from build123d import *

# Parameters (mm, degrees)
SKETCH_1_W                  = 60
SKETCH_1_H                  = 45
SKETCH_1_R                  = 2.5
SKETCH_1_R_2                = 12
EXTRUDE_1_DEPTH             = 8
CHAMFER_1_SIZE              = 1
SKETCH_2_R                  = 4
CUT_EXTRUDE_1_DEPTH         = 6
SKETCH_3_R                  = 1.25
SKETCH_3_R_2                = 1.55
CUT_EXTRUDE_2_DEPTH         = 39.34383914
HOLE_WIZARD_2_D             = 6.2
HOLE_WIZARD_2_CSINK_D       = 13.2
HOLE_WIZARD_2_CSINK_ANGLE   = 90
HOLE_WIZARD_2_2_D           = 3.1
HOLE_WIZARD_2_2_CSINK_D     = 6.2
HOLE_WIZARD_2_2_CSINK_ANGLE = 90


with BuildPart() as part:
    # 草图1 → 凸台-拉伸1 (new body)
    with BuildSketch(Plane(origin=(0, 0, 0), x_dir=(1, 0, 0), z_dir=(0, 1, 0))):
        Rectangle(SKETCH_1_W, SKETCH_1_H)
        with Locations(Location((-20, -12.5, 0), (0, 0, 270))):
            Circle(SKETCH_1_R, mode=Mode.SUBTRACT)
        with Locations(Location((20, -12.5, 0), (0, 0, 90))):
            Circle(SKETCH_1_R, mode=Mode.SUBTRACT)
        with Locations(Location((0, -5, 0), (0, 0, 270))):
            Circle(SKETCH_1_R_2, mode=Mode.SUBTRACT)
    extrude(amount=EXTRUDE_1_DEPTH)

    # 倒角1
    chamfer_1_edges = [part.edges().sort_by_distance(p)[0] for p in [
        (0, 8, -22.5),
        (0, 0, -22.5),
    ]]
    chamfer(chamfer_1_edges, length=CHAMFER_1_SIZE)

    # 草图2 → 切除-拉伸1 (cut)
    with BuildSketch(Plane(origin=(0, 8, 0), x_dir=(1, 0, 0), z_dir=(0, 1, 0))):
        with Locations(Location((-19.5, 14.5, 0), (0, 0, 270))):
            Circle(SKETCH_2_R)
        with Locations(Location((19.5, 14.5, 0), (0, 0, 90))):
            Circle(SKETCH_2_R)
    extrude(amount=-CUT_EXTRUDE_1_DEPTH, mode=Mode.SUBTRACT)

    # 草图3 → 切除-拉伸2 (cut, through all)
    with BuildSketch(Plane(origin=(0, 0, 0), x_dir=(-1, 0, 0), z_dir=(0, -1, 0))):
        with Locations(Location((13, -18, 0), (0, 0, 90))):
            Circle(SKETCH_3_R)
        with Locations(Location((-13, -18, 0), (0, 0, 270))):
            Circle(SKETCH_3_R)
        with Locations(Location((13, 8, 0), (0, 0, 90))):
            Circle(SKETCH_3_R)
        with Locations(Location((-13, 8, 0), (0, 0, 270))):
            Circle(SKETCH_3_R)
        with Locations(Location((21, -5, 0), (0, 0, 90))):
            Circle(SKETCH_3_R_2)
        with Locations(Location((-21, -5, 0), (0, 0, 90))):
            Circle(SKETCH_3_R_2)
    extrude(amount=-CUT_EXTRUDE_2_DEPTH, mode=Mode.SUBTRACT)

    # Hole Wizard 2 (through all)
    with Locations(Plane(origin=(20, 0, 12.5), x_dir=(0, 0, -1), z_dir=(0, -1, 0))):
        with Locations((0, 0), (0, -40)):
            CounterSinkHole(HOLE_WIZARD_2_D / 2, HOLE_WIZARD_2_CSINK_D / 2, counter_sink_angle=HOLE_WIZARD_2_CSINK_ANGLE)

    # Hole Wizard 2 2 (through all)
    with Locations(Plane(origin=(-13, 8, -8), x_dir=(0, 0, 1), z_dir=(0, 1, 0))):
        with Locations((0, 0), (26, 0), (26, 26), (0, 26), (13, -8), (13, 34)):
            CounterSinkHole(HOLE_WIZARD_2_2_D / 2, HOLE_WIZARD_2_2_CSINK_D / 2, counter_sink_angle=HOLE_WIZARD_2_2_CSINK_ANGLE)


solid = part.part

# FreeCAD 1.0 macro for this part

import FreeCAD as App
import Part
import Sketcher
from FreeCAD import Vector


def edges_at(feature, points):
    """Names of the edges that pass closest to the given points."""
    edges = feature.Shape.Edges
    near = lambda p: min(range(len(edges)), key=lambda i: edges[i].distToShape(Part.Vertex(*p))[0])
    return sorted({f"Edge{near(p) + 1}" for p in points})


def add_polygon(sketch, points):
    """Adds a closed chain of lines whose ends are joined by coincident constraints."""
    first, n = sketch.GeometryCount, len(points)
    for a, b in zip(points, points[1:] + points[:1]):
        sketch.addGeometry(Part.LineSegment(App.Vector(*a, 0), App.Vector(*b, 0)), False)
    for i in range(n):
        sketch.addConstraint(Sketcher.Constraint("Coincident", first + i, 2, first + (i + 1) % n, 1))

doc = App.newDocument("Part")
body = doc.addObject("PartDesign::Body", "Body")

# Sketch on XZ plane
sketch1 = body.newObject("Sketcher::SketchObject", "Sketch")
sketch1.AttachmentSupport = (doc.getObject("XZ_Plane"), [""])
sketch1.MapMode = "FlatFace"
add_polygon(sketch1, [(-30, -22.5), (-30, 22.5), (30, 22.5), (30, -22.5)])  # lines 0-3
sketch1.addGeometry(Part.Circle(Vector(-20, 12.5, 0), Vector(0, 0, 1), 2.5), False)  # 4
sketch1.addGeometry(Part.Circle(Vector(20, 12.5, 0), Vector(0, 0, 1), 2.5), False)  # 5
sketch1.addGeometry(Part.Circle(Vector(0, 5, 0), Vector(0, 0, 1), 12), False)  # 6
sketch1.addConstraint(Sketcher.Constraint("Vertical", 0))
sketch1.addConstraint(Sketcher.Constraint("Horizontal", 1))
sketch1.addConstraint(Sketcher.Constraint("Vertical", 2))
sketch1.addConstraint(Sketcher.Constraint("Horizontal", 3))
sketch1.addConstraint(Sketcher.Constraint("Equal", 4, 5))
sketch1.addConstraint(Sketcher.Constraint("Symmetric", 0, 2, 2, 2, -1, 1))
sketch1.addConstraint(Sketcher.Constraint("Symmetric", 4, 3, 5, 3, -2))
sketch1.addConstraint(Sketcher.Constraint("PointOnObject", 6, 3, -2))
sketch1.addConstraint(Sketcher.Constraint("Diameter", 4, 5.0))
sketch1.addConstraint(Sketcher.Constraint("Diameter", 6, 24.0))
sketch1.addConstraint(Sketcher.Constraint("DistanceX", 1, 1, 1, 2, 60.0))
sketch1.addConstraint(Sketcher.Constraint("DistanceY", 0, 1, 0, 2, 45.0))
sketch1.addConstraint(Sketcher.Constraint("DistanceX", 4, 3, -1, 1, 20.0))
sketch1.addConstraint(Sketcher.Constraint("DistanceY", -1, 1, 6, 3, 5.0))
sketch1.addConstraint(Sketcher.Constraint("DistanceY", 4, 3, 0, 2, 10.0))
pad1 = body.newObject("PartDesign::Pad", "Pad")
pad1.Profile = sketch1
pad1.Length = 8
pad1.Reversed = True
doc.recompute()

chamfer = body.newObject("PartDesign::Chamfer", "Chamfer")
chamfer.Base = (pad1, edges_at(pad1, [(0, 8, -22.5), (0, 0, -22.5)]))
chamfer.Size = 1

# Sketch on XZ plane
sketch2 = body.newObject("Sketcher::SketchObject", "Sketch001")
sketch2.AttachmentSupport = (doc.getObject("XZ_Plane"), [""])
sketch2.MapMode = "FlatFace"
sketch2.AttachmentOffset = App.Placement(Vector(0, 0, -8), App.Rotation())
sketch2.addGeometry(Part.Circle(Vector(-19.5, -14.5, 0), Vector(0, 0, 1), 4), False)
sketch2.addGeometry(Part.Circle(Vector(19.5, -14.5, 0), Vector(0, 0, 1), 4), False)
sketch2.addConstraint(Sketcher.Constraint("Equal", 0, 1))
sketch2.addConstraint(Sketcher.Constraint("Symmetric", 0, 3, 1, 3, -2))
sketch2.addConstraint(Sketcher.Constraint("Diameter", 0, 8.0))
sketch2.addConstraint(Sketcher.Constraint("DistanceX", 0, 3, 1, 3, 39.0))
sketch2.addConstraint(Sketcher.Constraint("DistanceY", 0, 3, -1, 1, 14.5))
pocket1 = body.newObject("PartDesign::Pocket", "Pocket")
pocket1.Profile = sketch2
pocket1.Length = 6
pocket1.Reversed = True

# Sketch on XZ plane
sketch3 = body.newObject("Sketcher::SketchObject", "Sketch002")
sketch3.AttachmentSupport = (doc.getObject("XZ_Plane"), [""])
sketch3.MapMode = "FlatFace"
sketch3.addGeometry(Part.Circle(Vector(-13, 18, 0), Vector(0, 0, 1), 1.2), False)
sketch3.addGeometry(Part.Circle(Vector(13, 18, 0), Vector(0, 0, 1), 1.2), False)
sketch3.addGeometry(Part.Circle(Vector(-13, -8, 0), Vector(0, 0, 1), 1.2), False)
sketch3.addGeometry(Part.Circle(Vector(13, -8, 0), Vector(0, 0, 1), 1.2), False)
sketch3.addGeometry(Part.Circle(Vector(-21, 5, 0), Vector(0, 0, 1), 1.6), False)
sketch3.addGeometry(Part.Circle(Vector(21, 5, 0), Vector(0, 0, 1), 1.6), False)
sketch3.addConstraint(Sketcher.Constraint("Equal", 0, 1))
sketch3.addConstraint(Sketcher.Constraint("Equal", 1, 2))
sketch3.addConstraint(Sketcher.Constraint("Equal", 2, 3))
sketch3.addConstraint(Sketcher.Constraint("Equal", 4, 5))
sketch3.addConstraint(Sketcher.Constraint("Symmetric", 0, 3, 1, 3, -2))
sketch3.addConstraint(Sketcher.Constraint("Symmetric", 2, 3, 3, 3, -2))
sketch3.addConstraint(Sketcher.Constraint("Symmetric", 4, 3, 5, 3, -2))
sketch3.addConstraint(Sketcher.Constraint("Vertical", 0, 3, 2, 3))
sketch3.addConstraint(Sketcher.Constraint("Diameter", 0, 2.5))
sketch3.addConstraint(Sketcher.Constraint("Diameter", 4, 3.1))
sketch3.addConstraint(Sketcher.Constraint("DistanceX", 0, 3, -1, 1, 13.0))
sketch3.addConstraint(Sketcher.Constraint("DistanceY", -1, 1, 0, 3, 18.0))
sketch3.addConstraint(Sketcher.Constraint("DistanceY", 2, 3, -1, 1, 8.0))
sketch3.addConstraint(Sketcher.Constraint("DistanceX", 4, 3, -1, 1, 21.0))
sketch3.addConstraint(Sketcher.Constraint("DistanceY", -1, 1, 4, 3, 5.0))
pocket2 = body.newObject("PartDesign::Pocket", "Pocket001")
pocket2.Profile = sketch3
pocket2.Type = "ThroughAll"

# Sketch on XZ plane
sketch4 = body.newObject("Sketcher::SketchObject", "Sketch003")
sketch4.AttachmentSupport = (doc.getObject("XZ_Plane"), [""])
sketch4.MapMode = "FlatFace"
sketch4.addGeometry(Part.Circle(Vector(20, 12.5, 0), Vector(0, 0, 1), 3.1), False)
sketch4.addGeometry(Part.Circle(Vector(-20, 12.5, 0), Vector(0, 0, 1), 3.1), False)
sketch4.addConstraint(Sketcher.Constraint("Equal", 0, 1))
sketch4.addConstraint(Sketcher.Constraint("Symmetric", 0, 3, 1, 3, -2))
sketch4.addConstraint(Sketcher.Constraint("Diameter", 0, 6.2))
sketch4.addConstraint(Sketcher.Constraint("DistanceX", -1, 1, 0, 3, 20.0))
sketch4.addConstraint(Sketcher.Constraint("DistanceY", -1, 1, 0, 3, 12.5))
doc.recompute()
hole = body.newObject("PartDesign::Hole", "Hole")
hole.Profile = sketch4
hole.ThreadType = "None"
hole.Diameter = 6.2
hole.DepthType = "ThroughAll"
hole.HoleCutType = "Countersink"
hole.HoleCutDiameter = 13.2
hole.HoleCutCountersinkAngle = 90

# Sketch on XZ plane
sketch5 = body.newObject("Sketcher::SketchObject", "Sketch004")
sketch5.AttachmentSupport = (doc.getObject("XZ_Plane"), [""])
sketch5.MapMode = "FlatFace"
sketch5.AttachmentOffset = App.Placement(Vector(0, 0, -8), App.Rotation())
sketch5.addGeometry(Part.Circle(Vector(-13, -8, 0), Vector(0, 0, 1), 1.6), False)
sketch5.addGeometry(Part.Circle(Vector(-13, 18, 0), Vector(0, 0, 1), 1.6), False)
sketch5.addGeometry(Part.Circle(Vector(13, 18, 0), Vector(0, 0, 1), 1.6), False)
sketch5.addGeometry(Part.Circle(Vector(13, -8, 0), Vector(0, 0, 1), 1.6), False)
sketch5.addGeometry(Part.Circle(Vector(-21, 5, 0), Vector(0, 0, 1), 1.6), False)
sketch5.addGeometry(Part.Circle(Vector(21, 5, 0), Vector(0, 0, 1), 1.6), False)
sketch5.addConstraint(Sketcher.Constraint("Equal", 0, 1))
sketch5.addConstraint(Sketcher.Constraint("Equal", 1, 2))
sketch5.addConstraint(Sketcher.Constraint("Equal", 2, 3))
sketch5.addConstraint(Sketcher.Constraint("Equal", 3, 4))
sketch5.addConstraint(Sketcher.Constraint("Equal", 4, 5))
sketch5.addConstraint(Sketcher.Constraint("Symmetric", 1, 3, 2, 3, -2))
sketch5.addConstraint(Sketcher.Constraint("Symmetric", 0, 3, 3, 3, -2))
sketch5.addConstraint(Sketcher.Constraint("Symmetric", 4, 3, 5, 3, -2))
sketch5.addConstraint(Sketcher.Constraint("Vertical", 0, 3, 1, 3))
sketch5.addConstraint(Sketcher.Constraint("Diameter", 0, 3.1))
sketch5.addConstraint(Sketcher.Constraint("DistanceX", 0, 3, -1, 1, 13.0))
sketch5.addConstraint(Sketcher.Constraint("DistanceY", 0, 3, -1, 1, 8.0))
sketch5.addConstraint(Sketcher.Constraint("DistanceY", -1, 1, 1, 3, 18.0))
sketch5.addConstraint(Sketcher.Constraint("DistanceX", 4, 3, -1, 1, 21.0))
sketch5.addConstraint(Sketcher.Constraint("DistanceY", -1, 1, 4, 3, 5.0))
doc.recompute()
hole2 = body.newObject("PartDesign::Hole", "Hole001")
hole2.Profile = sketch5
hole2.ThreadType = "None"
hole2.Diameter = 3.1
hole2.DepthType = "ThroughAll"
hole2.HoleCutType = "Countersink"
hole2.HoleCutDiameter = 6.2
hole2.HoleCutCountersinkAngle = 90
hole2.Reversed = True

doc.recompute()
